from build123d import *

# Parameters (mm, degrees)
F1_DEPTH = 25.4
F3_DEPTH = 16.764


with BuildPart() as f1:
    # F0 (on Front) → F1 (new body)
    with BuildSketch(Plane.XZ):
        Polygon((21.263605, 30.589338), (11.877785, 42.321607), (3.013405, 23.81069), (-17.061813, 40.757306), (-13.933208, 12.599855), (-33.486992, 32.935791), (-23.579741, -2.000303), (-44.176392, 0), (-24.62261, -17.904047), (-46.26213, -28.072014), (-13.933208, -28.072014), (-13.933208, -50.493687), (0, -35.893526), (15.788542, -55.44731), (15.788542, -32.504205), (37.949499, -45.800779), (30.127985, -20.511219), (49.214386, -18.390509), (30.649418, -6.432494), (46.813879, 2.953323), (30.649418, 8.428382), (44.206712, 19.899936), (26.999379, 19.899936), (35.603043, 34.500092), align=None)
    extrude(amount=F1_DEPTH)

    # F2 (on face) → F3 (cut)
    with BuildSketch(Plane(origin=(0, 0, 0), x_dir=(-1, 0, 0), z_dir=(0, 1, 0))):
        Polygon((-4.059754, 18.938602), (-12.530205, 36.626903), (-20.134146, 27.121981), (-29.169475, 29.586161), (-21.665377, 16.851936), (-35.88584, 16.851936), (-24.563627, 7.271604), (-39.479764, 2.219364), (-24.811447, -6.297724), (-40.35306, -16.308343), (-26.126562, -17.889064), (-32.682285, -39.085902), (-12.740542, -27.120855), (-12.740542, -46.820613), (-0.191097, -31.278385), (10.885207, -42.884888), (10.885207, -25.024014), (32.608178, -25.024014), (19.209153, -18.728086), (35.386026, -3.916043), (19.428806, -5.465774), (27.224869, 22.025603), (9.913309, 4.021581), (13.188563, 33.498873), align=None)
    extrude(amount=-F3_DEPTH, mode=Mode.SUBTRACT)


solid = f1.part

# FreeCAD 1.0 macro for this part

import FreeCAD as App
import Part
import Sketcher

V = App.Vector
Q = App.Units.Quantity


def add_polygon(sketch, points):
    """Adds a closed chain of lines whose ends are joined by coincident constraints."""
    first, n = sketch.GeometryCount, len(points)
    for a, b in zip(points, points[1:] + points[:1]):
        sketch.addGeometry(Part.LineSegment(App.Vector(*a, 0), App.Vector(*b, 0)), False)
    for i in range(n):
        sketch.addConstraint(Sketcher.Constraint("Coincident", first + i, 2, first + (i + 1) % n, 1))

doc = App.newDocument("Part")
body = doc.addObject("PartDesign::Body", "Body")

# Sketch on XZ plane
sketch1 = body.newObject("Sketcher::SketchObject", "Sketch")
sketch1.AttachmentSupport = (doc.getObject("XZ_Plane"), [""])
sketch1.MapMode = "FlatFace"
add_polygon(sketch1, [(21.263605, 30.589338), (11.877785, 42.321607), (3.013405, 23.81069), (-17.061813, 40.757306), (-13.933208, 12.599855), (-33.486992, 32.935791), (-23.579741, -2.000303), (-44.176392, 0), (-24.62261, -17.904047), (-46.26213, -28.072014), (-13.933208, -28.072014), (-13.933208, -50.493687), (0, -35.893526), (15.788542, -55.44731), (15.788542, -32.504205), (37.949499, -45.800779), (30.127985, -20.511219), (49.214386, -18.390509), (30.649418, -6.432494), (46.813879, 2.953323), (30.649418, 8.428382), (44.206712, 19.899936), (26.999379, 19.899936), (35.603043, 34.500092)])  # lines 0-23
sketch1.addConstraint(Sketcher.Constraint("Horizontal", 9))
sketch1.addConstraint(Sketcher.Constraint("Vertical", 10))
sketch1.addConstraint(Sketcher.Constraint("Vertical", 13))
sketch1.addConstraint(Sketcher.Constraint("Horizontal", 21))
sketch1.addConstraint(Sketcher.Constraint("PointOnObject", 6, 2, -1))
sketch1.addConstraint(Sketcher.Constraint("PointOnObject", 11, 2, -2))
sketch1.addConstraint(Sketcher.Constraint("Perpendicular", 3, 16))
sketch1.addConstraint(Sketcher.Constraint("Vertical", 3, 2, 9, 2))
sketch1.addConstraint(Sketcher.Constraint("Vertical", 17, 2, 19, 2))
sketch1.addConstraint(Sketcher.Constraint("Distance", 2, 26.271699))
sketch1.addConstraint(Sketcher.Constraint("Distance", 18, 18.691799))
sketch1.addConstraint(Sketcher.Constraint("DistanceX", -1, 1, 14, 2, 37.949499))
sketch1.addConstraint(Sketcher.Constraint("DistanceX", 2, 2, 0, 2, 28.939598))
sketch1.addConstraint(Sketcher.Constraint("DistanceY", 2, 2, 0, 2, 1.564301))
sketch1.addConstraint(Sketcher.Constraint("DistanceY", 1, 2, 4, 2, 9.125101))
sketch1.addConstraint(Sketcher.Constraint("DistanceX", 6, 2, 4, 2, 10.6894))
sketch1.addConstraint(Sketcher.Constraint("DistanceY", 7, 2, 3, 2, 30.503902))
sketch1.addConstraint(Sketcher.Constraint("DistanceX", 15, 2, 16, 2, 19.086401))
sketch1.addConstraint(Sketcher.Constraint("DistanceY", 12, 2, 16, 2, 37.056801))
sketch1.addConstraint(Sketcher.Constraint("DistanceY", 15, 2, 19, 2, 28.939601))
sketch1.addConstraint(Sketcher.Constraint("DistanceX", 21, 2, 18, 2, 19.8145))
sketch1.addConstraint(Sketcher.Constraint("DistanceX", 1, 2, 23, 2, 18.2502))
sketch1.addConstraint(Sketcher.Constraint("Distance", 0, 15.024638))
sketch1.addConstraint(Sketcher.Constraint("Distance", 1, 20.52392))
sketch1.addConstraint(Sketcher.Constraint("Distance", 3, 28.330729))
sketch1.addConstraint(Sketcher.Constraint("Distance", 7, 26.512361))
sketch1.addConstraint(Sketcher.Constraint("Distance", 11, 20.18165))
sketch1.addConstraint(Sketcher.Constraint("Distance", 12, 25.132221))
sketch1.addConstraint(Sketcher.Constraint("Distance", 19, 17.066519))
sketch1.addConstraint(Sketcher.Constraint("Distance", 22, 16.94661))
sketch1.addConstraint(Sketcher.Constraint("Distance", 23, 14.863158))
sketch1.addConstraint(Sketcher.Constraint("DistanceX", 9, 1, 9, 2, 32.328922))
sketch1.addConstraint(Sketcher.Constraint("DistanceX", 21, 2, 21, 1, 17.207333))
sketch1.addConstraint(Sketcher.Constraint("DistanceY", 10, 2, 10, 1, 22.421673))
sketch1.addConstraint(Sketcher.Constraint("DistanceY", 13, 1, 13, 2, 22.943105))
sketch1.addConstraint(Sketcher.Constraint("DistanceY", -1, 1, 1, 2, 23.81069))
sketch1.addConstraint(Sketcher.Constraint("DistanceX", 5, 2, -1, 1, 23.579741))
sketch1.addConstraint(Sketcher.Constraint("DistanceX", 7, 2, -1, 1, 24.62261))
sketch1.addConstraint(Sketcher.Constraint("DistanceX", 8, 2, -1, 1, 46.26213))
sketch1.addConstraint(Sketcher.Constraint("DistanceY", 12, 2, -1, 1, 55.44731))
sketch1.addConstraint(Sketcher.Constraint("DistanceY", 14, 2, -1, 1, 45.800779))
sketch1.addConstraint(Sketcher.Constraint("DistanceY", 15, 2, -1, 1, 20.511219))
sketch1.addConstraint(Sketcher.Constraint("DistanceX", -1, 1, 17, 2, 30.649418))
sketch1.addConstraint(Sketcher.Constraint("DistanceX", -1, 1, 18, 2, 46.813879))
sketch1.addConstraint(Sketcher.Constraint("DistanceY", 5, 2, 2, 2, 42.757609))
sketch1.addConstraint(Sketcher.Constraint("DistanceY", 8, 2, 5, 2, 26.071711))
sketch1.addConstraint(Sketcher.Constraint("DistanceY", 17, 2, 20, 2, 26.33243))
sketch1.addConstraint(Sketcher.Constraint("Distance", 15, 26.471455))
pad1 = body.newObject("PartDesign::Pad", "Pad")
pad1.Profile = sketch1
pad1.Length = Q("1 in")

# Sketch on XZ plane
sketch2 = body.newObject("Sketcher::SketchObject", "Sketch001")
sketch2.AttachmentSupport = (doc.getObject("XZ_Plane"), [""])
sketch2.MapMode = "FlatFace"
add_polygon(sketch2, [(4.059754, 18.938602), (12.530205, 36.626903), (20.134146, 27.121981), (29.169475, 29.586161), (21.665377, 16.851936), (35.88584, 16.851936), (24.563627, 7.271604), (39.479764, 2.219364), (24.811447, -6.297724), (40.35306, -16.308343), (26.126562, -17.889064), (32.682285, -39.085902), (12.740542, -27.120855), (12.740542, -46.820613), (0.191097, -31.278385), (-10.885207, -42.884888), (-10.885207, -25.024014), (-32.608178, -25.024014), (-19.209153, -18.728086), (-35.386026, -3.916043), (-19.428806, -5.465774), (-27.224869, 22.025603), (-9.913309, 4.021581), (-13.188563, 33.498873)])  # lines 0-23
sketch2.addConstraint(Sketcher.Constraint("Horizontal", 4))
sketch2.addConstraint(Sketcher.Constraint("Vertical", 12))
sketch2.addConstraint(Sketcher.Constraint("Vertical", 15))
sketch2.addConstraint(Sketcher.Constraint("Horizontal", 16))
sketch2.addConstraint(Sketcher.Constraint("Perpendicular", 9, 22))
sketch2.addConstraint(Sketcher.Constraint("DistanceX", 16, 2, 16, 1, 21.722971))
sketch2.addConstraint(Sketcher.Constraint("DistanceY", 12, 2, 12, 1, 19.699758))
sketch2.addConstraint(Sketcher.Constraint("DistanceY", 10, 2, -1, 1, 39.085902))
sketch2.addConstraint(Sketcher.Constraint("DistanceY", -1, 1, 23, 2, 18.938602))
sketch2.addConstraint(Sketcher.Constraint("DistanceY", 5, 2, 0, 2, 29.355299))
sketch2.addConstraint(Sketcher.Constraint("DistanceX", 1, 2, 7, 2, 4.677301))
sketch2.addConstraint(Sketcher.Constraint("DistanceY", 9, 2, 3, 2, 34.741))
sketch2.addConstraint(Sketcher.Constraint("DistanceY", 12, 2, 15, 2, 21.796599))
sketch2.addConstraint(Sketcher.Constraint("DistanceY", 13, 2, 17, 2, 12.550299))
sketch2.addConstraint(Sketcher.Constraint("DistanceY", 14, 2, 17, 2, 24.156802))
sketch2.addConstraint(Sketcher.Constraint("DistanceX", 19, 2, 15, 2, 8.543599))
sketch2.addConstraint(Sketcher.Constraint("DistanceY", 20, 2, 0, 2, 14.6013))
sketch2.addConstraint(Sketcher.Constraint("DistanceY", 23, 2, 0, 2, 17.688301))
sketch2.addConstraint(Sketcher.Constraint("Distance", 1, 12.172241))
sketch2.addConstraint(Sketcher.Constraint("Distance", 7, 16.961731))
sketch2.addConstraint(Sketcher.Constraint("Distance", 10, 22.187461))
sketch2.addConstraint(Sketcher.Constraint("Distance", 11, 23.255869))
sketch2.addConstraint(Sketcher.Constraint("Distance", 13, 19.976221))
sketch2.addConstraint(Sketcher.Constraint("Distance", 17, 14.804478))
sketch2.addConstraint(Sketcher.Constraint("Distance", 23, 22.572238))
sketch2.addConstraint(Sketcher.Constraint("DistanceX", 4, 1, 4, 2, 14.220463))
sketch2.addConstraint(Sketcher.Constraint("DistanceY", 15, 1, 15, 2, 17.860874))
sketch2.addConstraint(Sketcher.Constraint("DistanceY", -1, 1, 1, 2, 27.121981))
sketch2.addConstraint(Sketcher.Constraint("DistanceY", -1, 1, 2, 2, 29.586161))
sketch2.addConstraint(Sketcher.Constraint("DistanceX", -1, 1, 4, 2, 35.88584))
sketch2.addConstraint(Sketcher.Constraint("DistanceX", -1, 1, 8, 2, 40.35306))
sketch2.addConstraint(Sketcher.Constraint("DistanceX", -1, 1, 9, 2, 26.126562))
sketch2.addConstraint(Sketcher.Constraint("DistanceX", 16, 2, -1, 1, 32.608178))
sketch2.addConstraint(Sketcher.Constraint("DistanceX", 20, 2, -1, 1, 27.224869))
sketch2.addConstraint(Sketcher.Constraint("DistanceX", 21, 2, -1, 1, 9.913309))
sketch2.addConstraint(Sketcher.Constraint("DistanceY", -1, 1, 21, 2, 4.021581))
sketch2.addConstraint(Sketcher.Constraint("DistanceX", 1, 2, 2, 2, 9.035329))
sketch2.addConstraint(Sketcher.Constraint("DistanceX", 1, 2, 3, 2, 1.531231))
sketch2.addConstraint(Sketcher.Constraint("DistanceX", 3, 2, 5, 2, 2.89825))
sketch2.addConstraint(Sketcher.Constraint("DistanceY", 5, 2, 3, 2, 9.580332))
sketch2.addConstraint(Sketcher.Constraint("DistanceY", 6, 2, 4, 2, 14.632572))
sketch2.addConstraint(Sketcher.Constraint("DistanceX", 2, 2, 6, 2, 10.310289))
sketch2.addConstraint(Sketcher.Constraint("DistanceY", 8, 2, 7, 2, 10.010619))
sketch2.addConstraint(Sketcher.Constraint("DistanceX", 11, 2, 9, 2, 13.38602))
sketch2.addConstraint(Sketcher.Constraint("DistanceY", 16, 2, 18, 2, 21.107971))
sketch2.addConstraint(Sketcher.Constraint("DistanceX", 18, 2, 15, 2, 24.500819))
sketch2.addConstraint(Sketcher.Constraint("DistanceY", 19, 2, 18, 2, 1.549731))
sketch2.addConstraint(Sketcher.Constraint("DistanceY", 20, 2, 22, 2, 11.47327))
pocket1 = body.newObject("PartDesign::Pocket", "Pocket")
pocket1.Profile = sketch2
pocket1.Length = Q("0.66 in")
pocket1.Reversed = True

doc.recompute()
